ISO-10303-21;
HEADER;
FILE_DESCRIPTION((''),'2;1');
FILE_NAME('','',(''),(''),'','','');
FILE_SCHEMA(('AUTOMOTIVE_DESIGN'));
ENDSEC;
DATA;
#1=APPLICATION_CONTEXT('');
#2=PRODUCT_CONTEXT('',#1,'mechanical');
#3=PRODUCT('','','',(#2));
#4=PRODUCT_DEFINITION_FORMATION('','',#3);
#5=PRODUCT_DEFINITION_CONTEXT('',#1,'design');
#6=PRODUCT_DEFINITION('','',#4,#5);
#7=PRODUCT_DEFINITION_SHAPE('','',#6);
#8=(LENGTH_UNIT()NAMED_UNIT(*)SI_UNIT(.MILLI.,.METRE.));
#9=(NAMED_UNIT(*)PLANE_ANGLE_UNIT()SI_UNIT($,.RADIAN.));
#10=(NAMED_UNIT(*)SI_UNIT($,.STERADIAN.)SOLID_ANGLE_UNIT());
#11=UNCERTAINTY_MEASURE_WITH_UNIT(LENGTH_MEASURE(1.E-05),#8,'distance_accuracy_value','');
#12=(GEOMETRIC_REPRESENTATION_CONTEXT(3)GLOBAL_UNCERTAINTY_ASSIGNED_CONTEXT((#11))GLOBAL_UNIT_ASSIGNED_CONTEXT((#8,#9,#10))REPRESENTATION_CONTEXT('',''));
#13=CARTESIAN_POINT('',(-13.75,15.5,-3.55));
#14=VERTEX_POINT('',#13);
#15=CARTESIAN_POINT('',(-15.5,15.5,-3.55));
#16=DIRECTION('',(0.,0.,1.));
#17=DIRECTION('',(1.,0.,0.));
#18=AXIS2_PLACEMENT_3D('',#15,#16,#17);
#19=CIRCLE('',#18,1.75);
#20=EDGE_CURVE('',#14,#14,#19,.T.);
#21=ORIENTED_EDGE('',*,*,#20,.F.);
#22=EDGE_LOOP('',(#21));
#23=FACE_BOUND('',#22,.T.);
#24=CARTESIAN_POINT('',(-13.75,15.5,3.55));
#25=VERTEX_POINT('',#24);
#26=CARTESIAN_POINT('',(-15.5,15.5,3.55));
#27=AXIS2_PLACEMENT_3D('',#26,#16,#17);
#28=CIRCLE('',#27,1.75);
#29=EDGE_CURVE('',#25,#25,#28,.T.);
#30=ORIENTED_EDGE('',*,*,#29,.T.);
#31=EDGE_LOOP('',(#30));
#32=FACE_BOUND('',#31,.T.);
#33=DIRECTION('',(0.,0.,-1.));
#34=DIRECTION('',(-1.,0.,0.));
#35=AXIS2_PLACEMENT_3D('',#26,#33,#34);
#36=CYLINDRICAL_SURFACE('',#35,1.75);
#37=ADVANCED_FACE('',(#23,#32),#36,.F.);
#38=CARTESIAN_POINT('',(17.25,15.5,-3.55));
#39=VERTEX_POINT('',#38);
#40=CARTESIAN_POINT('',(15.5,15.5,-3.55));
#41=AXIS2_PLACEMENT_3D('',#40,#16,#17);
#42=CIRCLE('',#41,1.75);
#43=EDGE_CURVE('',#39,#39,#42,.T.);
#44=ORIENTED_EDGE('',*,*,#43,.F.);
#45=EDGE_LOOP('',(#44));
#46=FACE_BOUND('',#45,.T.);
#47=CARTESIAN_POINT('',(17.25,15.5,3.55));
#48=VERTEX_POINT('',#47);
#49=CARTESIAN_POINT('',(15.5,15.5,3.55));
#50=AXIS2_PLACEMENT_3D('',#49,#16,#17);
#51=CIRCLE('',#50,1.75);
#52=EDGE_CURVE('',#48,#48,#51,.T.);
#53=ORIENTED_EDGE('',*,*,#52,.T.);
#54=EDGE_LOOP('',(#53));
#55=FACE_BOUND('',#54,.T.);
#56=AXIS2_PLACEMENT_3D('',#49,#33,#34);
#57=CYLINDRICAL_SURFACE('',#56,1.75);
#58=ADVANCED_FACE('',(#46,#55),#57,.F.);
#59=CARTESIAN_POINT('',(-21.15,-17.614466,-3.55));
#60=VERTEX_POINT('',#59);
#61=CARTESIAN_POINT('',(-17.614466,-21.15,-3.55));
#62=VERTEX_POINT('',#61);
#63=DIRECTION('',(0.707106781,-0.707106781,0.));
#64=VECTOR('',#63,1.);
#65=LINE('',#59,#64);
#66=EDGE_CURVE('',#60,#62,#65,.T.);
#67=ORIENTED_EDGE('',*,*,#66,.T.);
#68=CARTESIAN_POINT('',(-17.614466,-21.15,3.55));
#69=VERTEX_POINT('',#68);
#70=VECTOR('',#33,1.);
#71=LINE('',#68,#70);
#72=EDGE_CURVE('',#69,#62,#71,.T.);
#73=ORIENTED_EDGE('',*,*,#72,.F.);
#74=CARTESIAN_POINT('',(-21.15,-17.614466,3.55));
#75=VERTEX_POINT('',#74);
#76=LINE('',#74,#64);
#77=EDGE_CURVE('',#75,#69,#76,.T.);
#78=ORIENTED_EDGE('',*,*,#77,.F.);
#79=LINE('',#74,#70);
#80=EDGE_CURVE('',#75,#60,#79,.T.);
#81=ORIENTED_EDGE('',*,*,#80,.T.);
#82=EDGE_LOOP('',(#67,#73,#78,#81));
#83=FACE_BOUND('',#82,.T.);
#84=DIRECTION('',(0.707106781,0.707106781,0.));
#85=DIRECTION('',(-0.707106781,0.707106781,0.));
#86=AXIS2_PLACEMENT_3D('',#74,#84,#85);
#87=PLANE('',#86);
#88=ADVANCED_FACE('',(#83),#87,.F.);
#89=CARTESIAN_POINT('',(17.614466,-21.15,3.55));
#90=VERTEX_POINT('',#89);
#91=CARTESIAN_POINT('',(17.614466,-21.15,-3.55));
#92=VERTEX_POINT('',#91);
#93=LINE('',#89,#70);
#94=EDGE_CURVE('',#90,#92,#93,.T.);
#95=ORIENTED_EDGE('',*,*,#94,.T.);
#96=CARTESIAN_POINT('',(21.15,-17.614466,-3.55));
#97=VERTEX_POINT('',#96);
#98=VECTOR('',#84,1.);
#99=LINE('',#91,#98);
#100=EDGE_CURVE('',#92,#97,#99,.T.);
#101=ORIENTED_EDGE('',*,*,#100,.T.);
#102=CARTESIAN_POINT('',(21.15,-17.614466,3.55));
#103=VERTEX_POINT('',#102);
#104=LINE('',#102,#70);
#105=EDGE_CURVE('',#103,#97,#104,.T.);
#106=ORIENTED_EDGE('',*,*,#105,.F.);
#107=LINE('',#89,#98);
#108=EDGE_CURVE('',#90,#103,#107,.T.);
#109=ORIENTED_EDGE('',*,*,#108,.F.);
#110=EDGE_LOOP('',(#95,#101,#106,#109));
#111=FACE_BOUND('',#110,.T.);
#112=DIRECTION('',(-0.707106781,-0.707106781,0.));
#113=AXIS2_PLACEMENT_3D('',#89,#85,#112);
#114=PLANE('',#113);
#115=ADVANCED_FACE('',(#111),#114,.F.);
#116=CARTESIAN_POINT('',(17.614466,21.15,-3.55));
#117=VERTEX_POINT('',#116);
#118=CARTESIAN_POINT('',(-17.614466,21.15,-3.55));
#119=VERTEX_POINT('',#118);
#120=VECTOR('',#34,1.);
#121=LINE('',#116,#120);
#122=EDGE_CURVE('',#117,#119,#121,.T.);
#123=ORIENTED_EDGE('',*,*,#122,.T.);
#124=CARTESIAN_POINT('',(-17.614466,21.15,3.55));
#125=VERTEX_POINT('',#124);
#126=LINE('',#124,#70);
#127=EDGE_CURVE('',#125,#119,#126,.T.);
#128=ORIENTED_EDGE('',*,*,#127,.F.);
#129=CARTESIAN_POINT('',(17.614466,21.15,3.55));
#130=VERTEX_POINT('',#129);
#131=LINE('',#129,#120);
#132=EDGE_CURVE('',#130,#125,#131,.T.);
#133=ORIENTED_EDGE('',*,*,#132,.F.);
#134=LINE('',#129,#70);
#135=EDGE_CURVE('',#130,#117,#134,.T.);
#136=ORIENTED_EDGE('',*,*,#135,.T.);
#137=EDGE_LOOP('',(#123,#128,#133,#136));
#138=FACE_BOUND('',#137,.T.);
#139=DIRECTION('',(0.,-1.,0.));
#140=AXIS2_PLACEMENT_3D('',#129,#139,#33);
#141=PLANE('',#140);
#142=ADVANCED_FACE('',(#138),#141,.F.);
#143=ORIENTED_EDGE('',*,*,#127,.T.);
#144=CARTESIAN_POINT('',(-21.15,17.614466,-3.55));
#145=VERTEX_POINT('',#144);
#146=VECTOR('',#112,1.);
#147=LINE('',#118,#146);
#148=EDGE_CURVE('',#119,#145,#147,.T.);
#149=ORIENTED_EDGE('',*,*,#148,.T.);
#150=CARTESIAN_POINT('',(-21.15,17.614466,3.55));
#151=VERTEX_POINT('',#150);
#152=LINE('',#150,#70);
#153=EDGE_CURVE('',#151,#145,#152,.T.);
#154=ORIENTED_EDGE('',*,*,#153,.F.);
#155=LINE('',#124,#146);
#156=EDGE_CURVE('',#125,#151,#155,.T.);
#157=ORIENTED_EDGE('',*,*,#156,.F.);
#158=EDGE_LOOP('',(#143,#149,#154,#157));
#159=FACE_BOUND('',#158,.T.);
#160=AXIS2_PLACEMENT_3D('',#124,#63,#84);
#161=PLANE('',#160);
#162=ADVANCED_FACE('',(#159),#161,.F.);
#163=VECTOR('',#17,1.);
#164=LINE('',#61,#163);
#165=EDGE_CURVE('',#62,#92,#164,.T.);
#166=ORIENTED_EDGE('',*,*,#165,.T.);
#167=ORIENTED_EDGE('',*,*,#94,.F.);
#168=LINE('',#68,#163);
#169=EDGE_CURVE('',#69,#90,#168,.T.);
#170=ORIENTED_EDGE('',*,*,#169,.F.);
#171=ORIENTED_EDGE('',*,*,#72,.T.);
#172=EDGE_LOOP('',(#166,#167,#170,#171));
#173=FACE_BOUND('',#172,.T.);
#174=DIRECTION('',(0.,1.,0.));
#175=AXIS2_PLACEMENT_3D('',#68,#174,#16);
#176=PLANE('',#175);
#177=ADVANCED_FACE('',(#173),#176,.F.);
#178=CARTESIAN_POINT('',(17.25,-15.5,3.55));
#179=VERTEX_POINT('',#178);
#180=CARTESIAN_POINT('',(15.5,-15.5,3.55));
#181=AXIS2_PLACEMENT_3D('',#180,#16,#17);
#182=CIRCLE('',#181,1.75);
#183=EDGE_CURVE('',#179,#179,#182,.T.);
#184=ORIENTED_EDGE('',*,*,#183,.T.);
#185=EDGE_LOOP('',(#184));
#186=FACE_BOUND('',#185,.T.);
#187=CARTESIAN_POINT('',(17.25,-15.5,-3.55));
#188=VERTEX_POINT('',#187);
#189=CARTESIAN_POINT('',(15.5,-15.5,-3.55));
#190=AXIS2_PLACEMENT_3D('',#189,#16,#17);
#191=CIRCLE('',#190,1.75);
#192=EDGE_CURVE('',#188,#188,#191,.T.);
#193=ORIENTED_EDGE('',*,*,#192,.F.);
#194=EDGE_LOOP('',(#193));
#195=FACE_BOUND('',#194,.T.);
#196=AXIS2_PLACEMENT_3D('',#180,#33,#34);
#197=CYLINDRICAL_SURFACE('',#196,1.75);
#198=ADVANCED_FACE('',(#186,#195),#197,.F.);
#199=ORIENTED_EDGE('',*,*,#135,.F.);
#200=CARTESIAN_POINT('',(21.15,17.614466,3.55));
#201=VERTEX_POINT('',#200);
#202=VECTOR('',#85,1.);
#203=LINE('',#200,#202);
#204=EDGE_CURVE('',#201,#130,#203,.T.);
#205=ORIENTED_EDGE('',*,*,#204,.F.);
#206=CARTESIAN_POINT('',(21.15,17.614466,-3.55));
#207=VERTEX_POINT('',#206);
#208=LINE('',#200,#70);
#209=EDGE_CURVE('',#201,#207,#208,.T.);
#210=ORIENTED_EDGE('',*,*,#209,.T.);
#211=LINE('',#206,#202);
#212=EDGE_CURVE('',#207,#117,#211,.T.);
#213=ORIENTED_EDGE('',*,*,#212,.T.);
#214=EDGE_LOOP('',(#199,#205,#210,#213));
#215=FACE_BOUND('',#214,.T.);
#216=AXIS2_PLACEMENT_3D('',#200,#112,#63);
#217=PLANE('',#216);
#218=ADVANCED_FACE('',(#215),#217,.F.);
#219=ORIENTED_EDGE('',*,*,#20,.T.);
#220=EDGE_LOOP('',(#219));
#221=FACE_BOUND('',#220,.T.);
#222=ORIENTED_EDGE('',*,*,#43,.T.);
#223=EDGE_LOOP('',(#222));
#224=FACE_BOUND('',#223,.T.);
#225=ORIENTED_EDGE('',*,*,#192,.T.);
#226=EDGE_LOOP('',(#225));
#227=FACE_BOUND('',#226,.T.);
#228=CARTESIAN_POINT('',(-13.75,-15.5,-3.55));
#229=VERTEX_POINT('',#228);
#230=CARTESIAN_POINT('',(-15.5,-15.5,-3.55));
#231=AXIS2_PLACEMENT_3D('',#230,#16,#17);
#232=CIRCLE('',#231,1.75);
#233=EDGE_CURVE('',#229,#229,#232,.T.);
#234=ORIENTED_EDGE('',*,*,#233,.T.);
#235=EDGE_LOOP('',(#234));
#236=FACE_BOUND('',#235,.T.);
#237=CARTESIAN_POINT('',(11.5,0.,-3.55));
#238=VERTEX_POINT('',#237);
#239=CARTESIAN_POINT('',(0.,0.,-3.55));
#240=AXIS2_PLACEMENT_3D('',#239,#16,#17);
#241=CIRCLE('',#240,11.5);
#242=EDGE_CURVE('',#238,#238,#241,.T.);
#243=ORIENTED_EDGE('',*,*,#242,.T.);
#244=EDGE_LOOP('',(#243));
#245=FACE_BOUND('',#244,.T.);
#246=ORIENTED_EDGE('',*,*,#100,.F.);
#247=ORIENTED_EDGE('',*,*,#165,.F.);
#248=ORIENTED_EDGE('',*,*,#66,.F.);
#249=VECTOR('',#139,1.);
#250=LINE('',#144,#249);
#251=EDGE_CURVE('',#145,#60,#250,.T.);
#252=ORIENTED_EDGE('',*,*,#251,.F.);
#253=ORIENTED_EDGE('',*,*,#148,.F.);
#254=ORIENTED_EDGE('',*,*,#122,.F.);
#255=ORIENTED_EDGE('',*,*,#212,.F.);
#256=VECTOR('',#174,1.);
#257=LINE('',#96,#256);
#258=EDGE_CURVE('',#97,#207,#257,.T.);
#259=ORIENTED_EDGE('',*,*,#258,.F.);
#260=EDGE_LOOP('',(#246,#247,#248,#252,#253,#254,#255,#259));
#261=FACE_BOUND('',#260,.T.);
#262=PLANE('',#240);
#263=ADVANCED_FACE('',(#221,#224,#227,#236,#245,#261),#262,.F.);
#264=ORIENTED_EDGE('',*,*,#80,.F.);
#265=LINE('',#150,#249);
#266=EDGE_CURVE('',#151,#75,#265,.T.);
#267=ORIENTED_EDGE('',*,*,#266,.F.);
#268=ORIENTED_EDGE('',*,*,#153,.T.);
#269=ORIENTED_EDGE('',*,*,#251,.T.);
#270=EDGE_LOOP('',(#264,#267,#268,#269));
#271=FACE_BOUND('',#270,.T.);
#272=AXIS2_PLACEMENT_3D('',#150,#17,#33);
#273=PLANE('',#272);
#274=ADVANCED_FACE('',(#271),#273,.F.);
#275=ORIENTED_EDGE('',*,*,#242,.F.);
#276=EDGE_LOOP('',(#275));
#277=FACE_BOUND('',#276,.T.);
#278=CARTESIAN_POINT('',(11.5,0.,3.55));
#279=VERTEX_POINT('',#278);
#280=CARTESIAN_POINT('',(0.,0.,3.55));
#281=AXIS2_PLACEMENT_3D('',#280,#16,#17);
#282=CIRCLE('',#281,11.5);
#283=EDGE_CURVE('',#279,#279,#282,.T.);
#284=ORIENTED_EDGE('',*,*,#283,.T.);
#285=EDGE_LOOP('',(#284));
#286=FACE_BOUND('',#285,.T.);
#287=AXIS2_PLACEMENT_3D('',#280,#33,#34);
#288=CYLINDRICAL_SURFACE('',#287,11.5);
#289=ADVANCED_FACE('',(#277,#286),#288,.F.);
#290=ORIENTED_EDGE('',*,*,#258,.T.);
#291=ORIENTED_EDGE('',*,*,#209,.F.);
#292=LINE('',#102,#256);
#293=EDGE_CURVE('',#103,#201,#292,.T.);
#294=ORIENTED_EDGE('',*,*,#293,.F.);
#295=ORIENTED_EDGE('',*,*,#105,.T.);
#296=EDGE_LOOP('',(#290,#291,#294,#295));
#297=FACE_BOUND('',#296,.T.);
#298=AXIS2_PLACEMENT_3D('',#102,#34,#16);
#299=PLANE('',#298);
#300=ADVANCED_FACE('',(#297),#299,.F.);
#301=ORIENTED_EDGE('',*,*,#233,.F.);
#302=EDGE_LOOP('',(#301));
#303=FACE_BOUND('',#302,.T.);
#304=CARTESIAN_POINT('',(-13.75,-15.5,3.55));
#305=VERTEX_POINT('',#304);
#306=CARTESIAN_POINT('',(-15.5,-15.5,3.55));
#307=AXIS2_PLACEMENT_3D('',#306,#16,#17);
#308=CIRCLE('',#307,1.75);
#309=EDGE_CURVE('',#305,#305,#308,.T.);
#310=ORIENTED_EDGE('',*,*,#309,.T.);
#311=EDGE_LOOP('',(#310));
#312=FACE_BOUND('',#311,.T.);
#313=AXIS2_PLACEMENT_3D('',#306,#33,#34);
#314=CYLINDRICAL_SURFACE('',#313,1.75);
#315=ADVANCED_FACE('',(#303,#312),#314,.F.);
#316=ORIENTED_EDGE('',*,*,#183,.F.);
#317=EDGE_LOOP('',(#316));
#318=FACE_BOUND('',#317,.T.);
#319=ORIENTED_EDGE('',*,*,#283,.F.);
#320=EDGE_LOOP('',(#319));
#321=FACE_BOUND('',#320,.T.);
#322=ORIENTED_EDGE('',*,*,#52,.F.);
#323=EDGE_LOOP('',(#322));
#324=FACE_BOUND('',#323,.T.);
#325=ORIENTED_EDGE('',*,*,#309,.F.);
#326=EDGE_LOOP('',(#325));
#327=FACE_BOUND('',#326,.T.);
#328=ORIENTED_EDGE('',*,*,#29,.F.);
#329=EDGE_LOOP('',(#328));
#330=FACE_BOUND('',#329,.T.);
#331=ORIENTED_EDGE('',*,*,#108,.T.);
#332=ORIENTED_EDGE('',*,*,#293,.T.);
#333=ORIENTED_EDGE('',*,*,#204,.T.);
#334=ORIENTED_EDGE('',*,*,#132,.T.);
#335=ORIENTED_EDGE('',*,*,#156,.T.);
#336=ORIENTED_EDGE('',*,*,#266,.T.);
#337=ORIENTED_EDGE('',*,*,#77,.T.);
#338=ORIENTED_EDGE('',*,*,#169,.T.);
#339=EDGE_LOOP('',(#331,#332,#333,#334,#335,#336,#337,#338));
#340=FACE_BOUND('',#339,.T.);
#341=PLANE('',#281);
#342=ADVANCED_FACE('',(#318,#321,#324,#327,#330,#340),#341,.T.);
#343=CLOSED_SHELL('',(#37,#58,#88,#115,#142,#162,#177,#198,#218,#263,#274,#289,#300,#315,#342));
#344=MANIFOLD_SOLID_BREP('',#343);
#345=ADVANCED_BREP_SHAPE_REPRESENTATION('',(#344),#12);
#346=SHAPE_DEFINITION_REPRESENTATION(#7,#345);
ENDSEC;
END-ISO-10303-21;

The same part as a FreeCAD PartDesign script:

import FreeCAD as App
import Part
import Sketcher

V = App.Vector


def add_polygon(sketch, points):
    """Adds a closed chain of lines whose ends are joined by coincident constraints."""
    first, n = sketch.GeometryCount, len(points)
    for a, b in zip(points, points[1:] + points[:1]):
        sketch.addGeometry(Part.LineSegment(App.Vector(*a, 0), App.Vector(*b, 0)), False)
    for i in range(n):
        sketch.addConstraint(Sketcher.Constraint("Coincident", first + i, 2, first + (i + 1) % n, 1))

doc = App.newDocument("Part")
params = doc.addObject("Spreadsheet::Sheet", "Params")
for row, (alias, value) in enumerate([
    ("sketch1_diameter", "23 mm"),
    ("sketch1_diameter2", "3.5 mm"),
    ("sketch1_length", "5 mm"),
    ("pad1_length", "7.1 mm"),
], start=1):
    params.set(f"A{row}", alias)
    params.set(f"B{row}", "=" + value)
    params.setAlias(f"B{row}", alias)

body = doc.addObject("PartDesign::Body", "Body")

# Sketch on XY plane
sketch1 = body.newObject("Sketcher::SketchObject", "Sketch")
sketch1.AttachmentSupport = (doc.getObject("XY_Plane"), [""])
sketch1.MapMode = "FlatFace"
add_polygon(sketch1, [(21.15, -17.614466), (21.15, 17.614466), (17.614466, 21.15), (-17.614466, 21.15), (-21.15, 17.614466), (-21.15, -17.614466), (-17.614466, -21.15), (17.614466, -21.15)])  # lines 0-7
sketch1.addGeometry(Part.Circle(V(-15.5, -15.5, 0), V(0, 0, 1), 1.75), False)  # 8
sketch1.addGeometry(Part.Circle(V(15.5, -15.5, 0), V(0, 0, 1), 1.75), False)  # 9
sketch1.addGeometry(Part.Circle(V(-15.5, 15.5, 0), V(0, 0, 1), 1.75), False)  # 10
sketch1.addGeometry(Part.Circle(V(0, 0, 0), V(0, 0, 1), 11.5), False)  # 11
sketch1.addGeometry(Part.Circle(V(15.5, 15.5, 0), V(0, 0, 1), 1.75), False)  # 12
sketch1.addConstraint(Sketcher.Constraint("Vertical", 0))
sketch1.addConstraint(Sketcher.Constraint("Horizontal", 2))
sketch1.addConstraint(Sketcher.Constraint("Vertical", 4))
sketch1.addConstraint(Sketcher.Constraint("Horizontal", 6))
sketch1.addConstraint(Sketcher.Constraint("Coincident", 11, 3, -1, 1))
sketch1.addConstraint(Sketcher.Constraint("Equal", 8, 9))
sketch1.addConstraint(Sketcher.Constraint("Equal", 9, 10))
sketch1.addConstraint(Sketcher.Constraint("Equal", 10, 12))
sketch1.addConstraint(Sketcher.Constraint("Symmetric", 9, 3, 10, 3, -1, 1))
sketch1.addConstraint(Sketcher.Constraint("Symmetric", 8, 3, 12, 3, -1, 1))
sketch1.addConstraint(Sketcher.Constraint("Symmetric", 0, 2, 4, 2, -1, 1))
sketch1.addConstraint(Sketcher.Constraint("Symmetric", 1, 2, 5, 2, -1, 1))
sketch1.addConstraint(Sketcher.Constraint("Symmetric", 8, 3, 9, 3, -2))
sketch1.addConstraint(Sketcher.Constraint("Perpendicular", 1, 3))
sketch1.addConstraint(Sketcher.Constraint("Perpendicular", 5, 7))
sketch1.addConstraint(Sketcher.Constraint("Horizontal", 0, 2, 3, 2))
sketch1.addConstraint(Sketcher.Constraint("Horizontal", 4, 2, 7, 2))
sketch1.addConstraint(Sketcher.Constraint("Vertical", 2, 2, 5, 2))
sketch1.addConstraint(Sketcher.Constraint("Equal", 6, 0))
sketch1.addConstraint(Sketcher.Constraint("Diameter", 11, 23.0))
sketch1.addConstraint(Sketcher.Constraint("Diameter", 8, 3.5))
sketch1.addConstraint(Sketcher.Constraint("Distance", 1, 5.0))
sketch1.addConstraint(Sketcher.Constraint("DistanceX", 8, 3, 9, 3, 31.0))
sketch1.addConstraint(Sketcher.Constraint("DistanceY", 8, 3, 10, 3, 31.0))
sketch1.addConstraint(Sketcher.Constraint("DistanceX", -1, 1, 0, 2, 21.15))
sketch1.setExpression("Constraints[27]", "Params.sketch1_diameter")
sketch1.setExpression("Constraints[28]", "Params.sketch1_diameter2")
sketch1.setExpression("Constraints[29]", "Params.sketch1_length")
pad1 = body.newObject("PartDesign::Pad", "Pad")
pad1.Profile = sketch1
pad1.setExpression("Length", "Params.pad1_length")
pad1.Midplane = True

doc.recompute()
